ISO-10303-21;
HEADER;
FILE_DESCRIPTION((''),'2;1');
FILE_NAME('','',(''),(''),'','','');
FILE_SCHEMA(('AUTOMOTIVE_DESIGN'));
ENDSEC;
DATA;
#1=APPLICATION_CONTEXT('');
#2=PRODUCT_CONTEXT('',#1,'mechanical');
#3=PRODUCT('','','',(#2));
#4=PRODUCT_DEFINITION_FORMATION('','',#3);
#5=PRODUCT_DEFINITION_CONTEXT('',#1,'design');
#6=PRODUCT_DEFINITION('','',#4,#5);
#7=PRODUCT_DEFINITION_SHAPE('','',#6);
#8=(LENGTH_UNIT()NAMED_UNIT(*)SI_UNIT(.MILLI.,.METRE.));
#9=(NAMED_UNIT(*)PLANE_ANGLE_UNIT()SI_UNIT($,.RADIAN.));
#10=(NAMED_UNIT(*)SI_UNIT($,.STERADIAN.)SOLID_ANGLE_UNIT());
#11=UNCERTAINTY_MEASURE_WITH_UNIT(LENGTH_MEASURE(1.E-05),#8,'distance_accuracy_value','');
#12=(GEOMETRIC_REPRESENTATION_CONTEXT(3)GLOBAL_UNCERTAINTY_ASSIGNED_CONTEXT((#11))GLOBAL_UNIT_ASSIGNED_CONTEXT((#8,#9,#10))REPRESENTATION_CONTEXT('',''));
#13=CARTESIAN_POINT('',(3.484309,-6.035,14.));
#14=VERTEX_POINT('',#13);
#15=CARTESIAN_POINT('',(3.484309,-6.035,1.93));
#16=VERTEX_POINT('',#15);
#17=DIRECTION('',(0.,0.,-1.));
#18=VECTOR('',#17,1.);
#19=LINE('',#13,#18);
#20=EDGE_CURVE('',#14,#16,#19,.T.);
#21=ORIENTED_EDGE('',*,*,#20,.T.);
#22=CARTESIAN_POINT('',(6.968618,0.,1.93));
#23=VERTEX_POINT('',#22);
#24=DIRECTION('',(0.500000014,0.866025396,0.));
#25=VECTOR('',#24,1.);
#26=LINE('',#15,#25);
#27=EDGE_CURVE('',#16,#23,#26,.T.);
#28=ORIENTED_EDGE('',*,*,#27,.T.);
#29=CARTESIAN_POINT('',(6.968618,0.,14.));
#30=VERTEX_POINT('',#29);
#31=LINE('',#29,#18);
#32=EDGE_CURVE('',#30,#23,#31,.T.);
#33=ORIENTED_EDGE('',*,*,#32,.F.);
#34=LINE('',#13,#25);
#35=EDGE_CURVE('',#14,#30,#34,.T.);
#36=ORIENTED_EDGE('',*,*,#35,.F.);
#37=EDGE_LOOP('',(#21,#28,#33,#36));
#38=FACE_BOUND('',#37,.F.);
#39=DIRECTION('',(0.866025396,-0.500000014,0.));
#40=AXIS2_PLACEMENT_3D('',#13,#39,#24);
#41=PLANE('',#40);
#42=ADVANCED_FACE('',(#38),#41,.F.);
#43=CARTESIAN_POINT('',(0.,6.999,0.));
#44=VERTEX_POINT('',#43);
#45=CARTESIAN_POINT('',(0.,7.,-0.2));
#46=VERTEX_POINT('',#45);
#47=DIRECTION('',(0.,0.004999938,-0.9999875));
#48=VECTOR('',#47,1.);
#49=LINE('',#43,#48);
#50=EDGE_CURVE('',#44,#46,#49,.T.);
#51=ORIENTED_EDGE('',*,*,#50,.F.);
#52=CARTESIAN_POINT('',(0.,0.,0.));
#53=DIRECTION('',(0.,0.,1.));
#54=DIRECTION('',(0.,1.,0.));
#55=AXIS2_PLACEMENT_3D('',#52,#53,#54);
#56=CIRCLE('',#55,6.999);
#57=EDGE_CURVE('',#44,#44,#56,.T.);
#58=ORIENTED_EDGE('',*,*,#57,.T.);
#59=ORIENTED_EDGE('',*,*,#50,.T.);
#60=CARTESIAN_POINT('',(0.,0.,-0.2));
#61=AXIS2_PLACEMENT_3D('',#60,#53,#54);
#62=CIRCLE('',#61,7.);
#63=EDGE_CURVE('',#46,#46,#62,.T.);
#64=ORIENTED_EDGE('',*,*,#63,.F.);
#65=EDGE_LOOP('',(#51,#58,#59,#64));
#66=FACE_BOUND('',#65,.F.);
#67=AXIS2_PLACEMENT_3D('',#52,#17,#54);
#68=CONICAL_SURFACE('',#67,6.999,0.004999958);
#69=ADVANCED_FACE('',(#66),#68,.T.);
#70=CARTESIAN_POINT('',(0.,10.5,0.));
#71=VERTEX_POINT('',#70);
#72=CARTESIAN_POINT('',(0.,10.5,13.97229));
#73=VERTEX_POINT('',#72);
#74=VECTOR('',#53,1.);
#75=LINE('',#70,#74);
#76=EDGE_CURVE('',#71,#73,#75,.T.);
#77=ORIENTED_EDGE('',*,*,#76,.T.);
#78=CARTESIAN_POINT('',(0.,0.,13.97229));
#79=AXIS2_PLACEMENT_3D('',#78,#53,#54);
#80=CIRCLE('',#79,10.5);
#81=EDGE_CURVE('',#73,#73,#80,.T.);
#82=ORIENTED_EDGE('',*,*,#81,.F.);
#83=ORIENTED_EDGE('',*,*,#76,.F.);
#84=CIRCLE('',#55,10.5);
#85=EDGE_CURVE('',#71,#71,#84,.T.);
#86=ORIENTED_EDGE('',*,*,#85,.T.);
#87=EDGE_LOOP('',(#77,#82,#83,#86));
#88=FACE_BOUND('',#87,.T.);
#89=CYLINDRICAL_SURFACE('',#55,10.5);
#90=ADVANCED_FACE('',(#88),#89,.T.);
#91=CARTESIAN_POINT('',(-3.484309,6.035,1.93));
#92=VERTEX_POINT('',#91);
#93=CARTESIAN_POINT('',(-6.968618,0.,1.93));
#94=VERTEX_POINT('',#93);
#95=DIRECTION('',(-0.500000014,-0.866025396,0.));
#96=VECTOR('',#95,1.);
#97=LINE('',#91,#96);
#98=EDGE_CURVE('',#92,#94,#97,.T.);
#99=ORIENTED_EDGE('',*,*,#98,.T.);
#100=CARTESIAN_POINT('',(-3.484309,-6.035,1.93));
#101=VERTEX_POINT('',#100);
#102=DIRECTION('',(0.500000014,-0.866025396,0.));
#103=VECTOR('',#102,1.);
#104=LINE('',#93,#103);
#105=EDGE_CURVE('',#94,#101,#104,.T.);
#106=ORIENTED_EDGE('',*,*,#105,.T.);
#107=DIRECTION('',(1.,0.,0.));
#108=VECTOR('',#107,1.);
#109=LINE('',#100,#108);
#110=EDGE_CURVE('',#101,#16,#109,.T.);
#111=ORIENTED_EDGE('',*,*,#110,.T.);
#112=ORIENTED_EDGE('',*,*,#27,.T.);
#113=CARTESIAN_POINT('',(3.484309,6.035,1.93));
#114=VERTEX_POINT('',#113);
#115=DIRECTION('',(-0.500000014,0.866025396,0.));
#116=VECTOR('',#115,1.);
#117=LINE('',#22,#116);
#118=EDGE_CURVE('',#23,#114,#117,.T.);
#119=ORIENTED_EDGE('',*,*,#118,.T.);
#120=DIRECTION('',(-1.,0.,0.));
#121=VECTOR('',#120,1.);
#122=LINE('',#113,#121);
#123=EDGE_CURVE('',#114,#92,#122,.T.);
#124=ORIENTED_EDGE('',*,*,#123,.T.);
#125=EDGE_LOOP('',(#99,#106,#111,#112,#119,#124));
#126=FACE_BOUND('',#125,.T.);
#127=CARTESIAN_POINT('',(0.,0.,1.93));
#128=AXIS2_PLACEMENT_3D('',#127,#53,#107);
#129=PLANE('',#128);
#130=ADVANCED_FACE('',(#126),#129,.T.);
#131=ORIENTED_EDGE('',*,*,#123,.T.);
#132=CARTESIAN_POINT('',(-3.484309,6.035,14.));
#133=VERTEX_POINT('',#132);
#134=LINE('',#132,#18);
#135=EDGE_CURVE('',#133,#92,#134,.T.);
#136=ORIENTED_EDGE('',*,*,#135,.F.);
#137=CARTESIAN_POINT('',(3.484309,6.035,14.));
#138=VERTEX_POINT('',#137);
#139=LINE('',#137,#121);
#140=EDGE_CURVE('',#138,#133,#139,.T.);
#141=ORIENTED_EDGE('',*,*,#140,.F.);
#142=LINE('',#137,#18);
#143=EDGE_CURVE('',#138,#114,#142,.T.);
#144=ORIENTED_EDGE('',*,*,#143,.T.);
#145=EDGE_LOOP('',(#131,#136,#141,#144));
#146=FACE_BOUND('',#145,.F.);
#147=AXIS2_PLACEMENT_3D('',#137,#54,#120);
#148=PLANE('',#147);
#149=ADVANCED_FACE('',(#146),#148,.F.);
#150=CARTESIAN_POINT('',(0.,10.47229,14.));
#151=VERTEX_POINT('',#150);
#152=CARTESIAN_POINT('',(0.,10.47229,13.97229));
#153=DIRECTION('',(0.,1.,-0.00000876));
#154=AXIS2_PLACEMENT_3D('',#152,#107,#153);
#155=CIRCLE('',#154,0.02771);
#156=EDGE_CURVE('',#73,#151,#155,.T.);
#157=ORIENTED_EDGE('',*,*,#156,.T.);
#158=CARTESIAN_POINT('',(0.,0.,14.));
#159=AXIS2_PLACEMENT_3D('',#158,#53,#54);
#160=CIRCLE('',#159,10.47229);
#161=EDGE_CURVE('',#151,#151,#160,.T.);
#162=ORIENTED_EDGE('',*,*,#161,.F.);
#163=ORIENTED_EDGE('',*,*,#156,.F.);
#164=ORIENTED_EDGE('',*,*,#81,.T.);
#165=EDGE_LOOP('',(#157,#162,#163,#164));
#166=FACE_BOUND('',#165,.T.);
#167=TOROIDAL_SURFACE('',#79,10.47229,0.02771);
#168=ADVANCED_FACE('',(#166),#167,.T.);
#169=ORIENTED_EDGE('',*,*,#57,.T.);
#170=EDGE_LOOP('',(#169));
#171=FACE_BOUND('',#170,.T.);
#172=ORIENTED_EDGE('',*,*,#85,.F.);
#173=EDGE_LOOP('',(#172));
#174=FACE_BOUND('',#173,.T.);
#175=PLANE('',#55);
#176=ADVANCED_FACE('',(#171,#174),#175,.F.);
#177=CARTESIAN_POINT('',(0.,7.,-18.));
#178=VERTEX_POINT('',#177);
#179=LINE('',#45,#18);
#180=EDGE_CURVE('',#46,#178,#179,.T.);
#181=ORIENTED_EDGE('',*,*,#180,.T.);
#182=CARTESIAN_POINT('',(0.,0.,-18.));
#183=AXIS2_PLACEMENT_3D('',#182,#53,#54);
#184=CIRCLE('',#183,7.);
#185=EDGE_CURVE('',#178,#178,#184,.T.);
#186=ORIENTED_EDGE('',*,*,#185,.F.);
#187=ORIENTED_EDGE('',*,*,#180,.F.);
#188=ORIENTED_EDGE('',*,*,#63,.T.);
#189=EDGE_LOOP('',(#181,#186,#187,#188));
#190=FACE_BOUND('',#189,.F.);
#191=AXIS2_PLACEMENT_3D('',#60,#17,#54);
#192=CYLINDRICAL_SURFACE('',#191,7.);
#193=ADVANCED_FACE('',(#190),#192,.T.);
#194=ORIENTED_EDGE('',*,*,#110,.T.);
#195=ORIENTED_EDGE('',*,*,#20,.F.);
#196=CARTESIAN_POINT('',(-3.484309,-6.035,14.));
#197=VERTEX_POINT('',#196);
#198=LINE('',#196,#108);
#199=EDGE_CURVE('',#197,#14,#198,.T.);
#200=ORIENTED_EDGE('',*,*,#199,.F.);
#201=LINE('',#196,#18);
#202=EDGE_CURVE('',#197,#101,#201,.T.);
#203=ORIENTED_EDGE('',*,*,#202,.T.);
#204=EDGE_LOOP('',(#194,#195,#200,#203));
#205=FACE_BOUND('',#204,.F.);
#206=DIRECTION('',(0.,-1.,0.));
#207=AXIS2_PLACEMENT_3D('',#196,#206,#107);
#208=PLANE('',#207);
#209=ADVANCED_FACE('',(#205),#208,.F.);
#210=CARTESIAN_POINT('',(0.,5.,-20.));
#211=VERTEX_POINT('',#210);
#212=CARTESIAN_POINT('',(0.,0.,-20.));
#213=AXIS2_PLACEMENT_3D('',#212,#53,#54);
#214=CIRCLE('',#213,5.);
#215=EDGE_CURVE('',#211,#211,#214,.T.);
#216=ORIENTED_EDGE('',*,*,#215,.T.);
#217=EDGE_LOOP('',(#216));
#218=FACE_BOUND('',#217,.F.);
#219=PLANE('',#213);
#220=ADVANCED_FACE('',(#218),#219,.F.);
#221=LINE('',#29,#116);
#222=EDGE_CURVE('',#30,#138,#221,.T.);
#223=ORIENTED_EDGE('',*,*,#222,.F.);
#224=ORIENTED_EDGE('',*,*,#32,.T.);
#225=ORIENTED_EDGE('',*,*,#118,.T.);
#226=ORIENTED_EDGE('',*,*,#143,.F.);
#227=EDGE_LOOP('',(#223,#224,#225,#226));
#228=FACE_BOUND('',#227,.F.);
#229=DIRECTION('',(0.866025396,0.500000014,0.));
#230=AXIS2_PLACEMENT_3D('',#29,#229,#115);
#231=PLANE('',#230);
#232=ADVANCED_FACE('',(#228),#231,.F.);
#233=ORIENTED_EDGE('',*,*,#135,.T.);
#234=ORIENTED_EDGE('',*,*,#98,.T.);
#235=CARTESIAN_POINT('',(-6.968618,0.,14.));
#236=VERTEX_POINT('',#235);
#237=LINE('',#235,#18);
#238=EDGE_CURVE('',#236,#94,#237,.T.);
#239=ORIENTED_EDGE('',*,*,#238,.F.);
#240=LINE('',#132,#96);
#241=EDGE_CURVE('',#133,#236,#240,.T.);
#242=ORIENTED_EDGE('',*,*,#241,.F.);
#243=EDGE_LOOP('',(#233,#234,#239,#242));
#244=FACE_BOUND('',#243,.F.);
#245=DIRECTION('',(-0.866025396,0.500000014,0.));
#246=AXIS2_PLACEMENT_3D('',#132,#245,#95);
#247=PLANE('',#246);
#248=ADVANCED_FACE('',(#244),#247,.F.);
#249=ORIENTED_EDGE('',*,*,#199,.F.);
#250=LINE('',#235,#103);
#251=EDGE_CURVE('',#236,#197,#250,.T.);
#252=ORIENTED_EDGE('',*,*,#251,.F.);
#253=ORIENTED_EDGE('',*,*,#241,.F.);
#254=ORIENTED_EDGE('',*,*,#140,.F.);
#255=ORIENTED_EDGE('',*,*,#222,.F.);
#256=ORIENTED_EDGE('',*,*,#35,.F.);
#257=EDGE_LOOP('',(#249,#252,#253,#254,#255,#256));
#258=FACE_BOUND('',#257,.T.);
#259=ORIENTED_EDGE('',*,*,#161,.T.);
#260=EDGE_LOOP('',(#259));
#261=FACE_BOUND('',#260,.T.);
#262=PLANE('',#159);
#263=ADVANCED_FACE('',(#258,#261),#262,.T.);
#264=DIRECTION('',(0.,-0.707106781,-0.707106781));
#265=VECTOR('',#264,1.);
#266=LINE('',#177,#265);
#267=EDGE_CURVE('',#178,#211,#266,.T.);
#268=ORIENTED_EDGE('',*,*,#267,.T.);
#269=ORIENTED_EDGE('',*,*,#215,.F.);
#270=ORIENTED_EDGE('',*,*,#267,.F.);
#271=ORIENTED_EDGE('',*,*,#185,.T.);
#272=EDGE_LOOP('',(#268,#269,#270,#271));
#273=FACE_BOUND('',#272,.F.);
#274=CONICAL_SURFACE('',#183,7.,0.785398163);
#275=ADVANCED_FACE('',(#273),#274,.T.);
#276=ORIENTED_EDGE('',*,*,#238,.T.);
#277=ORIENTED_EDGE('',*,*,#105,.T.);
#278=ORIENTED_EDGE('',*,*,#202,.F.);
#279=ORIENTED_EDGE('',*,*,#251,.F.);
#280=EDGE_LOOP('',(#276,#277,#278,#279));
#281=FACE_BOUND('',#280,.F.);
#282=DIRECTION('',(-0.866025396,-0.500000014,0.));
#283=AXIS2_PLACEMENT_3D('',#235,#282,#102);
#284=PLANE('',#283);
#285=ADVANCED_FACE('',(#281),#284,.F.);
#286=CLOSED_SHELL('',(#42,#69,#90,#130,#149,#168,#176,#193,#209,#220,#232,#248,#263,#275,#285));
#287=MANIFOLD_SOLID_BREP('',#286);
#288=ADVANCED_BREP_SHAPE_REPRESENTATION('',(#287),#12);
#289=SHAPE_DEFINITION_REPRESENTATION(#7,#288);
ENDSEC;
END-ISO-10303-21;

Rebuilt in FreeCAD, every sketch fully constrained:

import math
import FreeCAD as App
import Part
import Sketcher
Q = App.Units.Quantity

doc = App.newDocument("Part")
body = doc.addObject("PartDesign::Body", "Body")

sketch1 = body.newObject("Sketcher::SketchObject", "Sketch")
sketch1.AttachmentSupport = (doc.getObject("YZ_Plane"), [""])
sketch1.MapMode = "FlatFace"
sketch1.addGeometry([
    Part.LineSegment(App.Vector(6.999, 0, 0), App.Vector(10.5, 0, 0)),
    Part.LineSegment(App.Vector(10.5, 0, 0), App.Vector(10.5, 13.972, 0)),
    Part.ArcOfCircle(Part.Circle(App.Vector(10.472, 13.972, 0), App.Vector(0, 0, 1), 0.028), math.radians(0), math.radians(90)),
    Part.LineSegment(App.Vector(10.472, 14, 0), App.Vector(0, 14, 0)),
    Part.LineSegment(App.Vector(0, 14, 0), App.Vector(0, -20, 0)),
    Part.LineSegment(App.Vector(0, -20, 0), App.Vector(5, -20, 0)),
    Part.LineSegment(App.Vector(5, -20, 0), App.Vector(7, -18, 0)),
    Part.LineSegment(App.Vector(7, -18, 0), App.Vector(7, -0.2, 0)),
    Part.LineSegment(App.Vector(7, -0.2, 0), App.Vector(6.999, 0, 0)),
], False)
sketch1.addConstraint([
    Sketcher.Constraint("Coincident", 0, 2, 1, 1),
    Sketcher.Constraint("Coincident", 1, 2, 2, 1),
    Sketcher.Constraint("Coincident", 2, 2, 3, 1),
    Sketcher.Constraint("Coincident", 3, 2, 4, 1),
    Sketcher.Constraint("Coincident", 4, 2, 5, 1),
    Sketcher.Constraint("Coincident", 5, 2, 6, 1),
    Sketcher.Constraint("Coincident", 6, 2, 7, 1),
    Sketcher.Constraint("Coincident", 7, 2, 8, 1),
    Sketcher.Constraint("Coincident", 8, 2, 0, 1),
    Sketcher.Constraint("Horizontal", 0),
    Sketcher.Constraint("Vertical", 1),
    Sketcher.Constraint("Horizontal", 3),
    Sketcher.Constraint("Vertical", 4),
    Sketcher.Constraint("Horizontal", 5),
    Sketcher.Constraint("Vertical", 7),
    Sketcher.Constraint("PointOnObject", 0, 2, -1),
    Sketcher.Constraint("PointOnObject", 3, 2, -2),
    Sketcher.Constraint("Horizontal", 2, 3, 1, 2),
    Sketcher.Constraint("DistanceX", 5, 1, 5, 2, 5.0),
    Sketcher.Constraint("DistanceY", 4, 2, 4, 1, 34.0),
    Sketcher.Constraint("Angle", 6, Q("45 deg")),
    Sketcher.Constraint("DistanceY", 7, 1, 7, 2, 17.8),
    Sketcher.Constraint("DistanceY", -1, 1, 2, 2, 14.0),
    Sketcher.Constraint("DistanceX", -1, 1, 6, 2, 7.0),
    Sketcher.Constraint("DistanceX", -1, 1, 0, 2, 10.5),
    Sketcher.Constraint("DistanceX", 0, 1, 0, 2, 3.501),
    Sketcher.Constraint("Radius", 2, 0.02771),
    Sketcher.Constraint("DistanceX", 3, 2, 3, 1, 10.47229),
])
revolution = body.newObject("PartDesign::Revolution", "Revolution")
revolution.Profile = sketch1
revolution.ReferenceAxis = (sketch1, ["V_Axis"])
revolution.Angle = 360

sketch2 = body.newObject("Sketcher::SketchObject", "Sketch001")
sketch2.AttachmentSupport = (doc.getObject("XY_Plane"), [""])
sketch2.MapMode = "FlatFace"
sketch2.AttachmentOffset = App.Placement(App.Vector(0, 0, 14), App.Rotation())
sketch2.addGeometry([
    Part.LineSegment(App.Vector(7, 0, 0), App.Vector(3, 6, 0)),
    Part.LineSegment(App.Vector(3, 6, 0), App.Vector(-3, 6, 0)),
    Part.LineSegment(App.Vector(-3, 6, 0), App.Vector(-7, 0, 0)),
    Part.LineSegment(App.Vector(-7, 0, 0), App.Vector(-3, -6, 0)),
    Part.LineSegment(App.Vector(-3, -6, 0), App.Vector(3, -6, 0)),
    Part.LineSegment(App.Vector(3, -6, 0), App.Vector(7, 0, 0)),
], False)
sketch2.addConstraint([
    Sketcher.Constraint("Coincident", 0, 2, 1, 1),
    Sketcher.Constraint("Coincident", 1, 2, 2, 1),
    Sketcher.Constraint("Coincident", 2, 2, 3, 1),
    Sketcher.Constraint("Coincident", 3, 2, 4, 1),
    Sketcher.Constraint("Coincident", 4, 2, 5, 1),
    Sketcher.Constraint("Coincident", 5, 2, 0, 1),
    Sketcher.Constraint("Horizontal", 1),
    Sketcher.Constraint("Horizontal", 4),
    Sketcher.Constraint("Symmetric", 0, 2, 3, 2, -1, 1),
    Sketcher.Constraint("Symmetric", 2, 2, 5, 2, -1, 1),
    Sketcher.Constraint("PointOnObject", 2, 2, -1),
    Sketcher.Constraint("Parallel", 2, 5),
    Sketcher.Constraint("Vertical", 1, 2, 3, 2),
    Sketcher.Constraint("Angle", 0, Q("120.000001 deg")),
    Sketcher.Constraint("DistanceY", 3, 2, 1, 2, 12.07),
    Sketcher.Constraint("DistanceX", 1, 2, 1, 1, 6.968618),
])
pocket1 = body.newObject("PartDesign::Pocket", "Pocket")
pocket1.Profile = sketch2
pocket1.Length = 12.07

doc.recompute()
